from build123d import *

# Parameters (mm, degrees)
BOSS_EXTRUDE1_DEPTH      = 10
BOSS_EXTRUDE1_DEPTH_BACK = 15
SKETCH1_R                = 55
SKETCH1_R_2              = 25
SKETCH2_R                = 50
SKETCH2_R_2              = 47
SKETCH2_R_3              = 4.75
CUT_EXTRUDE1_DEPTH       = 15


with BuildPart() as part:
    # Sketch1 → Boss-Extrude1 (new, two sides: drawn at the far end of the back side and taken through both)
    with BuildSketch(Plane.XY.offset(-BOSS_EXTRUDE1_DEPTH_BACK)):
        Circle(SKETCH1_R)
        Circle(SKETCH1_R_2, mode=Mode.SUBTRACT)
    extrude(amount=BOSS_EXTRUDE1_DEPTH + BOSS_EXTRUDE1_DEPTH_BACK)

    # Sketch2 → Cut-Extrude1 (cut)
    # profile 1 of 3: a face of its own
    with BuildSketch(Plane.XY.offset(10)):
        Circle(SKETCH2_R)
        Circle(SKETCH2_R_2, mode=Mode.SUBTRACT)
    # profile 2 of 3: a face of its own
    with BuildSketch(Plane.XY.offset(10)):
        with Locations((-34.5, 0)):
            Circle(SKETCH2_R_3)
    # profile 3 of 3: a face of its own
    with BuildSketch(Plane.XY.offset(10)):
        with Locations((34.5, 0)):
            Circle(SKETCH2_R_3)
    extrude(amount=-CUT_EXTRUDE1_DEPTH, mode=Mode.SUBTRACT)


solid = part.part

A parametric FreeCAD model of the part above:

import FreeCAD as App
import Part
import Sketcher
from FreeCAD import Vector

doc = App.newDocument("Part")
params = doc.addObject("Spreadsheet::Sheet", "Params")
for row, (alias, value) in enumerate([
    ("sketch1_diameter", "110 mm"),
    ("sketch1_diameter2", "50 mm"),
    ("pad1_length", "10 mm"),
    ("pad1_length2", "15 mm"),
    ("sketch2_diameter", "100 mm"),
    ("sketch2_diameter2", "94 mm"),
    ("sketch2_diameter3", "9.5 mm"),
    ("pocket1_length", "15 mm"),
], start=1):
    params.set(f"A{row}", alias)
    params.set(f"B{row}", "=" + value)
    params.setAlias(f"B{row}", alias)

body = doc.addObject("PartDesign::Body", "Body")

# Sketch on XY plane
sketch1 = body.newObject("Sketcher::SketchObject", "Sketch")
sketch1.AttachmentSupport = (doc.getObject("XY_Plane"), [""])
sketch1.MapMode = "FlatFace"
sketch1.addGeometry([
    Part.Circle(Vector(0, 0, 0), Vector(0, 0, 1), 55),
    Part.Circle(Vector(0, 0, 0), Vector(0, 0, 1), 25),
], False)
sketch1.addConstraint([
    Sketcher.Constraint("Coincident", 0, 3, -1, 1),
    Sketcher.Constraint("Coincident", 1, 3, -1, 1),
    Sketcher.Constraint("Diameter", 0, 110.0),
    Sketcher.Constraint("Diameter", 1, 50.0),
])
sketch1.setExpression("Constraints[2]", "Params.sketch1_diameter")
sketch1.setExpression("Constraints[3]", "Params.sketch1_diameter2")
pad1 = body.newObject("PartDesign::Pad", "Pad")
pad1.Profile = sketch1
pad1.Type = "TwoLengths"
pad1.setExpression("Length", "Params.pad1_length")
pad1.setExpression("Length2", "Params.pad1_length2")

# Sketch on XY plane
sketch2 = body.newObject("Sketcher::SketchObject", "Sketch001")
sketch2.AttachmentSupport = (doc.getObject("XY_Plane"), [""])
sketch2.MapMode = "FlatFace"
sketch2.AttachmentOffset = App.Placement(Vector(0, 0, 10), App.Rotation())
sketch2.addGeometry([
    Part.Circle(Vector(0, 0, 0), Vector(0, 0, 1), 50),
    Part.Circle(Vector(0, 0, 0), Vector(0, 0, 1), 47),
    Part.Circle(Vector(-34.5, 0, 0), Vector(0, 0, 1), 4.8),
    Part.Circle(Vector(34.5, 0, 0), Vector(0, 0, 1), 4.8),
], False)
sketch2.addConstraint([
    Sketcher.Constraint("Coincident", 0, 3, -1, 1),
    Sketcher.Constraint("Coincident", 1, 3, -1, 1),
    Sketcher.Constraint("Equal", 2, 3),
    Sketcher.Constraint("Symmetric", 2, 3, 3, 3, -1, 1),
    Sketcher.Constraint("PointOnObject", 2, 3, -1),
    Sketcher.Constraint("Diameter", 0, 100.0),
    Sketcher.Constraint("Diameter", 1, 94.0),
    Sketcher.Constraint("Diameter", 2, 9.5),
    Sketcher.Constraint("DistanceX", 2, 3, 3, 3, 69.0),
])
sketch2.setExpression("Constraints[5]", "Params.sketch2_diameter")
sketch2.setExpression("Constraints[6]", "Params.sketch2_diameter2")
sketch2.setExpression("Constraints[7]", "Params.sketch2_diameter3")
pocket1 = body.newObject("PartDesign::Pocket", "Pocket")
pocket1.Profile = sketch2
pocket1.setExpression("Length", "Params.pocket1_length")

doc.recompute()
